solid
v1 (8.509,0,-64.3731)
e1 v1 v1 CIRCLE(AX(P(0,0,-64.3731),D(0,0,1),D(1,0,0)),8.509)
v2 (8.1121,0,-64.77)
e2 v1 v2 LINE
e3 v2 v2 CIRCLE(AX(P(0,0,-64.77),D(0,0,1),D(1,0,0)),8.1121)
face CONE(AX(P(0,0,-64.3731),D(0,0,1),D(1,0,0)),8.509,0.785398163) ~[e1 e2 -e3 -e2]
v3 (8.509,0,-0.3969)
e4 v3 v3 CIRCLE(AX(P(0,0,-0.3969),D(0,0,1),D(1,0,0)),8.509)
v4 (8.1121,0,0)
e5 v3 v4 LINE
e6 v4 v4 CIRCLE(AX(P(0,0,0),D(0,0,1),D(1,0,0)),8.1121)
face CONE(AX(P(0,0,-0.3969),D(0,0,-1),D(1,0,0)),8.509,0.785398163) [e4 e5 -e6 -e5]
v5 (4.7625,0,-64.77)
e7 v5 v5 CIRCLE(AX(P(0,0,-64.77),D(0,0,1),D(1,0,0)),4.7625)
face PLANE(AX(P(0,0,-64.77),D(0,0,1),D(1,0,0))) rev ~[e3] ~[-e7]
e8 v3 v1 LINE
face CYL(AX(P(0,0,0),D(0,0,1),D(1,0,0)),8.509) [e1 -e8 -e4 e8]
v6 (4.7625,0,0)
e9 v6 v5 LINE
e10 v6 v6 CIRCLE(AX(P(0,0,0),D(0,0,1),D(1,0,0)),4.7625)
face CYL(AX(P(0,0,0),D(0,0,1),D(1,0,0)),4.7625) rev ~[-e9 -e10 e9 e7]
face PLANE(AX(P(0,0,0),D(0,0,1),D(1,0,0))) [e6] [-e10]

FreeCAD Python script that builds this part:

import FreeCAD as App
import Part
import Sketcher
from FreeCAD import Vector
Q = App.Units.Quantity


def edges_at(feature, points):
    """Names of the edges that pass closest to the given points."""
    edges = feature.Shape.Edges
    near = lambda p: min(range(len(edges)), key=lambda i: edges[i].distToShape(Part.Vertex(*p))[0])
    return sorted({f"Edge{near(p) + 1}" for p in points})

doc = App.newDocument("Part")
body = doc.addObject("PartDesign::Body", "Body")

sketch1 = body.newObject("Sketcher::SketchObject", "Sketch")
sketch1.AttachmentSupport = (doc.getObject("XY_Plane"), [""])
sketch1.MapMode = "FlatFace"
sketch1.addGeometry(Part.Circle(Vector(0, 0, 0), Vector(0, 0, 1), 8.509), False)
sketch1.addGeometry(Part.Circle(Vector(0, 0, 0), Vector(0, 0, 1), 4.7625), False)
sketch1.addConstraint(Sketcher.Constraint("Coincident", 0, 3, -1, 1))
sketch1.addConstraint(Sketcher.Constraint("Coincident", 1, 3, -1, 1))
sketch1.addConstraint(Sketcher.Constraint("Diameter", 0, Q("0.67 in")))
sketch1.addConstraint(Sketcher.Constraint("Diameter", 1, Q("0.375 in")))
pad1 = body.newObject("PartDesign::Pad", "Pad")
pad1.Profile = sketch1
pad1.Length = Q("2.55 in")
pad1.Reversed = True
doc.recompute()

chamfer = body.newObject("PartDesign::Chamfer", "Chamfer")
chamfer.Base = (pad1, edges_at(pad1, [(-8.509, 0, 0), (-8.509, 0, -64.77)]))
chamfer.Size = Q("0.015626 in")

doc.recompute()
